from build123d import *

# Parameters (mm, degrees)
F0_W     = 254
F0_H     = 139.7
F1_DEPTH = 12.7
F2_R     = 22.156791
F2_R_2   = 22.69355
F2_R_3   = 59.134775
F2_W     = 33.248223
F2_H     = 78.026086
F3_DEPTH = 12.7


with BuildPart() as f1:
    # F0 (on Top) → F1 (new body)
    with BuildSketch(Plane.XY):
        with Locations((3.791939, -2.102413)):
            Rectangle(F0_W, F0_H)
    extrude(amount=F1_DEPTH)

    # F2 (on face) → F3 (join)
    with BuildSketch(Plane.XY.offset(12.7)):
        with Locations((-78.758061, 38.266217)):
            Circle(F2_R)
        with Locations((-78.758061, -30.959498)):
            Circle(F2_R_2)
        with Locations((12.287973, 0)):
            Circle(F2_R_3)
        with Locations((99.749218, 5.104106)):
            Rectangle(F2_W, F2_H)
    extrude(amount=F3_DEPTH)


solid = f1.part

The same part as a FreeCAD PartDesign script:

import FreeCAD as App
import Part
import Sketcher
from FreeCAD import Vector
Q = App.Units.Quantity

doc = App.newDocument("Part")
body = doc.addObject("PartDesign::Body", "Body")

# Sketch on XY plane
sketch1 = doc.addObject("Sketcher::SketchObject", "Sketch")
body.addObject(sketch1)
sketch1.AttachmentSupport = (doc.XY_Plane, [""])
sketch1.MapMode = "FlatFace"
sketch1.addGeometry([
    Part.LineSegment(Vector(-123, 68, 0), Vector(-123, -72, 0)),
    Part.LineSegment(Vector(-123, -72, 0), Vector(131, -72, 0)),
    Part.LineSegment(Vector(131, -72, 0), Vector(131, 68, 0)),
    Part.LineSegment(Vector(131, 68, 0), Vector(-123, 68, 0)),
], False)
sketch1.addConstraint([
    Sketcher.Constraint("Coincident", 0, 2, 1, 1),
    Sketcher.Constraint("Coincident", 1, 2, 2, 1),
    Sketcher.Constraint("Coincident", 2, 2, 3, 1),
    Sketcher.Constraint("Coincident", 3, 2, 0, 1),
    Sketcher.Constraint("Vertical", 0),
    Sketcher.Constraint("Horizontal", 1),
    Sketcher.Constraint("Vertical", 2),
    Sketcher.Constraint("Horizontal", 3),
    Sketcher.Constraint("DistanceX", 1, 1, 1, 2, Q("10 in")),
    Sketcher.Constraint("DistanceY", 0, 2, 0, 1, Q("5.5 in")),
    Sketcher.Constraint("DistanceX", 0, 2, -1, 1, Q("123.208061 mm")),
    Sketcher.Constraint("DistanceY", 0, 2, -1, 1, Q("71.952413 mm")),
])
pad1 = doc.addObject("PartDesign::Pad", "Pad")
body.addObject(pad1)
pad1.Profile = sketch1
pad1.Length = Q("0.5 in")

# Sketch on XY plane
sketch2 = doc.addObject("Sketcher::SketchObject", "Sketch001")
body.addObject(sketch2)
sketch2.AttachmentSupport = (doc.XY_Plane, [""])
sketch2.MapMode = "FlatFace"
sketch2.AttachmentOffset = App.Placement(Vector(0, 0, 0.5 * 25.4), App.Rotation())
sketch2.addGeometry([
    Part.Circle(Vector(-79, 38, 0), Vector(0, 0, 1), 22),  # 0
    Part.Circle(Vector(-79, -31, 0), Vector(0, 0, 1), 23),  # 1
    Part.Circle(Vector(12, 0, 0), Vector(0, 0, 1), 59),  # 2
    Part.LineSegment(Vector(83, 44, 0), Vector(83, -34, 0)),  # 3
    Part.LineSegment(Vector(83, -34, 0), Vector(116, -34, 0)),  # 4
    Part.LineSegment(Vector(116, -34, 0), Vector(116, 44, 0)),  # 5
    Part.LineSegment(Vector(116, 44, 0), Vector(83, 44, 0)),  # 6
], False)
sketch2.addConstraint([
    Sketcher.Constraint("Coincident", 3, 2, 4, 1),
    Sketcher.Constraint("Coincident", 4, 2, 5, 1),
    Sketcher.Constraint("Coincident", 5, 2, 6, 1),
    Sketcher.Constraint("Coincident", 6, 2, 3, 1),
    Sketcher.Constraint("Vertical", 3),
    Sketcher.Constraint("Horizontal", 4),
    Sketcher.Constraint("Vertical", 5),
    Sketcher.Constraint("Horizontal", 6),
    Sketcher.Constraint("PointOnObject", 2, 3, -1),
    Sketcher.Constraint("Vertical", 0, 3, 1, 3),
    Sketcher.Constraint("Diameter", 1, Q("45.3871 mm")),
    Sketcher.Constraint("Diameter", 0, Q("44.313582 mm")),
    Sketcher.Constraint("Diameter", 2, Q("118.26955 mm")),
    Sketcher.Constraint("DistanceY", 1, 3, -1, 1, Q("30.959498 mm")),
    Sketcher.Constraint("DistanceX", 4, 1, 4, 2, Q("33.248223 mm")),
    Sketcher.Constraint("DistanceY", 3, 2, 3, 1, Q("78.026086 mm")),
    Sketcher.Constraint("DistanceX", 0, 3, -1, 1, Q("78.758061 mm")),
    Sketcher.Constraint("DistanceX", -1, 1, 4, 2, Q("116.373329 mm")),
    Sketcher.Constraint("DistanceY", -1, 1, 5, 2, Q("44.117149 mm")),
    Sketcher.Constraint("DistanceY", -1, 1, 0, 3, Q("38.266217 mm")),
    Sketcher.Constraint("DistanceX", -1, 1, 2, 3, Q("12.287973 mm")),
])
pad2 = doc.addObject("PartDesign::Pad", "Pad001")
body.addObject(pad2)
pad2.Profile = sketch2
pad2.Length = Q("0.5 in")

doc.recompute()
